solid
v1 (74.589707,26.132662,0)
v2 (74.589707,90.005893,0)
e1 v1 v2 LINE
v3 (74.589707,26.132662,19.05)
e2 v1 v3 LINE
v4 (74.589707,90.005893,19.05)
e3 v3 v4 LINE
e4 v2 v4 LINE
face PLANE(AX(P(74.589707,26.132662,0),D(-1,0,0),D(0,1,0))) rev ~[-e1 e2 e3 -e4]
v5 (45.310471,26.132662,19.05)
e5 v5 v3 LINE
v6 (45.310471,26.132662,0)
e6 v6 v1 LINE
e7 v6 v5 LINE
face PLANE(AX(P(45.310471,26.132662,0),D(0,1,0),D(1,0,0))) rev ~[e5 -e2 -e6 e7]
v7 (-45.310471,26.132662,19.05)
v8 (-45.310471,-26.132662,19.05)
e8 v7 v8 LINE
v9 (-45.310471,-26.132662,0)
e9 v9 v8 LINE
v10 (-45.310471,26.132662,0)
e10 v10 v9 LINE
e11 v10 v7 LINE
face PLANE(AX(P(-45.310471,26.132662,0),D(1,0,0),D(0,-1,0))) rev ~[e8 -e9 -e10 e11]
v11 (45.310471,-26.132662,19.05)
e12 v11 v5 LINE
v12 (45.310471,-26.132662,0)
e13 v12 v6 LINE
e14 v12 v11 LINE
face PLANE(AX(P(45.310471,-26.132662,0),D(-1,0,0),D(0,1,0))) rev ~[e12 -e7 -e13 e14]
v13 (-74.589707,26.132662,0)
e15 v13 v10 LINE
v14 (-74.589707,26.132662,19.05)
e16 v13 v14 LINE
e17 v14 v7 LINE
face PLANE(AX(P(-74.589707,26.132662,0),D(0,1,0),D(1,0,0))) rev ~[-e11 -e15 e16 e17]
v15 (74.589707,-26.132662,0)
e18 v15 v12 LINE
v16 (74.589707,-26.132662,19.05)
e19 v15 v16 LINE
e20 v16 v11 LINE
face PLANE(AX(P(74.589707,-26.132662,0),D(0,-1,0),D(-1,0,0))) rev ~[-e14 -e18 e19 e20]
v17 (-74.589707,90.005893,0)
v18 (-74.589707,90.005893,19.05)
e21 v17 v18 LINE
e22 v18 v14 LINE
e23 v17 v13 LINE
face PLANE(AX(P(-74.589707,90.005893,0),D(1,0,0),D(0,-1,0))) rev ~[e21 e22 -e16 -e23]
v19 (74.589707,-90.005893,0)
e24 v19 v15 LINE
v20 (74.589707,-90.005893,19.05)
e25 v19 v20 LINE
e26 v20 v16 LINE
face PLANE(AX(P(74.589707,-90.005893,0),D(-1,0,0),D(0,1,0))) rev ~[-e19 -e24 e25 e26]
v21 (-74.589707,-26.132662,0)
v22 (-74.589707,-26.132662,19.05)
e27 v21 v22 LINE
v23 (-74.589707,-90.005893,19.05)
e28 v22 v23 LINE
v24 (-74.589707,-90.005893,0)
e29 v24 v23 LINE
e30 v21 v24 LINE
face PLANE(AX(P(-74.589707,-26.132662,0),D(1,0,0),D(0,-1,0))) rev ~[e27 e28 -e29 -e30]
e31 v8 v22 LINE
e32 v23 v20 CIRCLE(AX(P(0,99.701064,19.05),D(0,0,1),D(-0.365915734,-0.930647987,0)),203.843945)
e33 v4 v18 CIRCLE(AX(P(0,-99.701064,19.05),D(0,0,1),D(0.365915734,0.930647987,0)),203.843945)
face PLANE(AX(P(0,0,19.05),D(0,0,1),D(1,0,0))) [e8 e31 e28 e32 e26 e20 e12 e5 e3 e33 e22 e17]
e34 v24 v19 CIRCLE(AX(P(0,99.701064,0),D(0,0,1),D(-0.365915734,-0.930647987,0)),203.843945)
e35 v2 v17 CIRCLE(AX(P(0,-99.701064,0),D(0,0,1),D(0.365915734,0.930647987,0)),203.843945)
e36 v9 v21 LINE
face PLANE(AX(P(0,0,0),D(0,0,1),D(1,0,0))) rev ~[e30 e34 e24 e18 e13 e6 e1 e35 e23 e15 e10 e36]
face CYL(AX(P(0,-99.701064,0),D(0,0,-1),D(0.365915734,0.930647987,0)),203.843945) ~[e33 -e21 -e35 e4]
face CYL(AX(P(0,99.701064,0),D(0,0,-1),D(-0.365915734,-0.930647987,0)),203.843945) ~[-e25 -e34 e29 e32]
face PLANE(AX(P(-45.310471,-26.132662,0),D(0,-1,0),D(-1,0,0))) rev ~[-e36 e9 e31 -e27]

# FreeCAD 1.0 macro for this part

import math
import FreeCAD as App
import Part
import Sketcher

V = App.Vector
Q = App.Units.Quantity

doc = App.newDocument("Part")
body = doc.addObject("PartDesign::Body", "Body")

# Sketch on XY plane
sketch1 = body.newObject("Sketcher::SketchObject", "Sketch")
sketch1.AttachmentSupport = (doc.getObject("XY_Plane"), [""])
sketch1.MapMode = "FlatFace"
sketch1.addGeometry(Part.LineSegment(V(75, 26, 0), V(75, 90, 0)), False)
sketch1.addGeometry(Part.ArcOfCircle(Part.Circle(V(0, -100, 0), V(0, 0, 1), 204), math.radians(69), math.radians(111)), False)
sketch1.addGeometry(Part.LineSegment(V(-75, 90, 0), V(-75, 26, 0)), False)
sketch1.addGeometry(Part.LineSegment(V(-75, 26, 0), V(-45, 26, 0)), False)
sketch1.addGeometry(Part.LineSegment(V(-45, 26, 0), V(-45, -26, 0)), False)
sketch1.addGeometry(Part.LineSegment(V(-45, -26, 0), V(-75, -26, 0)), False)
sketch1.addGeometry(Part.LineSegment(V(-75, -26, 0), V(-75, -90, 0)), False)
sketch1.addGeometry(Part.ArcOfCircle(Part.Circle(V(0, 100, 0), V(0, 0, 1), 204), math.radians(-111), math.radians(-69)), False)
sketch1.addGeometry(Part.LineSegment(V(75, -90, 0), V(75, -26, 0)), False)
sketch1.addGeometry(Part.LineSegment(V(75, -26, 0), V(45, -26, 0)), False)
sketch1.addGeometry(Part.LineSegment(V(45, -26, 0), V(45, 26, 0)), False)
sketch1.addGeometry(Part.LineSegment(V(45, 26, 0), V(75, 26, 0)), False)
sketch1.addConstraint(Sketcher.Constraint("Coincident", 0, 2, 1, 1))
sketch1.addConstraint(Sketcher.Constraint("Coincident", 1, 2, 2, 1))
sketch1.addConstraint(Sketcher.Constraint("Coincident", 2, 2, 3, 1))
sketch1.addConstraint(Sketcher.Constraint("Coincident", 3, 2, 4, 1))
sketch1.addConstraint(Sketcher.Constraint("Coincident", 4, 2, 5, 1))
sketch1.addConstraint(Sketcher.Constraint("Coincident", 5, 2, 6, 1))
sketch1.addConstraint(Sketcher.Constraint("Coincident", 6, 2, 7, 1))
sketch1.addConstraint(Sketcher.Constraint("Coincident", 7, 2, 8, 1))
sketch1.addConstraint(Sketcher.Constraint("Coincident", 8, 2, 9, 1))
sketch1.addConstraint(Sketcher.Constraint("Coincident", 9, 2, 10, 1))
sketch1.addConstraint(Sketcher.Constraint("Coincident", 10, 2, 11, 1))
sketch1.addConstraint(Sketcher.Constraint("Coincident", 11, 2, 0, 1))
sketch1.addConstraint(Sketcher.Constraint("Vertical", 0))
sketch1.addConstraint(Sketcher.Constraint("Vertical", 2))
sketch1.addConstraint(Sketcher.Constraint("Horizontal", 3))
sketch1.addConstraint(Sketcher.Constraint("Vertical", 4))
sketch1.addConstraint(Sketcher.Constraint("Horizontal", 5))
sketch1.addConstraint(Sketcher.Constraint("Vertical", 6))
sketch1.addConstraint(Sketcher.Constraint("Vertical", 8))
sketch1.addConstraint(Sketcher.Constraint("Horizontal", 9))
sketch1.addConstraint(Sketcher.Constraint("Vertical", 10))
sketch1.addConstraint(Sketcher.Constraint("Horizontal", 11))
sketch1.addConstraint(Sketcher.Constraint("Equal", 1, 7))
sketch1.addConstraint(Sketcher.Constraint("Symmetric", 1, 3, 7, 3, -1, 1))
sketch1.addConstraint(Sketcher.Constraint("Symmetric", 2, 2, 8, 2, -1, 1))
sketch1.addConstraint(Sketcher.Constraint("Symmetric", 4, 2, 10, 2, -1, 1))
sketch1.addConstraint(Sketcher.Constraint("Symmetric", 0, 2, 1, 2, -2))
sketch1.addConstraint(Sketcher.Constraint("Symmetric", 5, 2, 8, 2, -2))
sketch1.addConstraint(Sketcher.Constraint("Radius", 1, Q("203.843945 mm")))
sketch1.addConstraint(Sketcher.Constraint("DistanceY", 0, 1, 0, 2, Q("63.873231 mm")))
sketch1.addConstraint(Sketcher.Constraint("DistanceX", 3, 1, 3, 2, Q("29.279236 mm")))
sketch1.addConstraint(Sketcher.Constraint("DistanceY", 4, 2, 4, 1, Q("52.265324 mm")))
sketch1.addConstraint(Sketcher.Constraint("DistanceX", 3, 2, -1, 1, Q("45.310471 mm")))
pad1 = body.newObject("PartDesign::Pad", "Pad")
pad1.Profile = sketch1
pad1.Length = Q("0.75 in")

doc.recompute()
